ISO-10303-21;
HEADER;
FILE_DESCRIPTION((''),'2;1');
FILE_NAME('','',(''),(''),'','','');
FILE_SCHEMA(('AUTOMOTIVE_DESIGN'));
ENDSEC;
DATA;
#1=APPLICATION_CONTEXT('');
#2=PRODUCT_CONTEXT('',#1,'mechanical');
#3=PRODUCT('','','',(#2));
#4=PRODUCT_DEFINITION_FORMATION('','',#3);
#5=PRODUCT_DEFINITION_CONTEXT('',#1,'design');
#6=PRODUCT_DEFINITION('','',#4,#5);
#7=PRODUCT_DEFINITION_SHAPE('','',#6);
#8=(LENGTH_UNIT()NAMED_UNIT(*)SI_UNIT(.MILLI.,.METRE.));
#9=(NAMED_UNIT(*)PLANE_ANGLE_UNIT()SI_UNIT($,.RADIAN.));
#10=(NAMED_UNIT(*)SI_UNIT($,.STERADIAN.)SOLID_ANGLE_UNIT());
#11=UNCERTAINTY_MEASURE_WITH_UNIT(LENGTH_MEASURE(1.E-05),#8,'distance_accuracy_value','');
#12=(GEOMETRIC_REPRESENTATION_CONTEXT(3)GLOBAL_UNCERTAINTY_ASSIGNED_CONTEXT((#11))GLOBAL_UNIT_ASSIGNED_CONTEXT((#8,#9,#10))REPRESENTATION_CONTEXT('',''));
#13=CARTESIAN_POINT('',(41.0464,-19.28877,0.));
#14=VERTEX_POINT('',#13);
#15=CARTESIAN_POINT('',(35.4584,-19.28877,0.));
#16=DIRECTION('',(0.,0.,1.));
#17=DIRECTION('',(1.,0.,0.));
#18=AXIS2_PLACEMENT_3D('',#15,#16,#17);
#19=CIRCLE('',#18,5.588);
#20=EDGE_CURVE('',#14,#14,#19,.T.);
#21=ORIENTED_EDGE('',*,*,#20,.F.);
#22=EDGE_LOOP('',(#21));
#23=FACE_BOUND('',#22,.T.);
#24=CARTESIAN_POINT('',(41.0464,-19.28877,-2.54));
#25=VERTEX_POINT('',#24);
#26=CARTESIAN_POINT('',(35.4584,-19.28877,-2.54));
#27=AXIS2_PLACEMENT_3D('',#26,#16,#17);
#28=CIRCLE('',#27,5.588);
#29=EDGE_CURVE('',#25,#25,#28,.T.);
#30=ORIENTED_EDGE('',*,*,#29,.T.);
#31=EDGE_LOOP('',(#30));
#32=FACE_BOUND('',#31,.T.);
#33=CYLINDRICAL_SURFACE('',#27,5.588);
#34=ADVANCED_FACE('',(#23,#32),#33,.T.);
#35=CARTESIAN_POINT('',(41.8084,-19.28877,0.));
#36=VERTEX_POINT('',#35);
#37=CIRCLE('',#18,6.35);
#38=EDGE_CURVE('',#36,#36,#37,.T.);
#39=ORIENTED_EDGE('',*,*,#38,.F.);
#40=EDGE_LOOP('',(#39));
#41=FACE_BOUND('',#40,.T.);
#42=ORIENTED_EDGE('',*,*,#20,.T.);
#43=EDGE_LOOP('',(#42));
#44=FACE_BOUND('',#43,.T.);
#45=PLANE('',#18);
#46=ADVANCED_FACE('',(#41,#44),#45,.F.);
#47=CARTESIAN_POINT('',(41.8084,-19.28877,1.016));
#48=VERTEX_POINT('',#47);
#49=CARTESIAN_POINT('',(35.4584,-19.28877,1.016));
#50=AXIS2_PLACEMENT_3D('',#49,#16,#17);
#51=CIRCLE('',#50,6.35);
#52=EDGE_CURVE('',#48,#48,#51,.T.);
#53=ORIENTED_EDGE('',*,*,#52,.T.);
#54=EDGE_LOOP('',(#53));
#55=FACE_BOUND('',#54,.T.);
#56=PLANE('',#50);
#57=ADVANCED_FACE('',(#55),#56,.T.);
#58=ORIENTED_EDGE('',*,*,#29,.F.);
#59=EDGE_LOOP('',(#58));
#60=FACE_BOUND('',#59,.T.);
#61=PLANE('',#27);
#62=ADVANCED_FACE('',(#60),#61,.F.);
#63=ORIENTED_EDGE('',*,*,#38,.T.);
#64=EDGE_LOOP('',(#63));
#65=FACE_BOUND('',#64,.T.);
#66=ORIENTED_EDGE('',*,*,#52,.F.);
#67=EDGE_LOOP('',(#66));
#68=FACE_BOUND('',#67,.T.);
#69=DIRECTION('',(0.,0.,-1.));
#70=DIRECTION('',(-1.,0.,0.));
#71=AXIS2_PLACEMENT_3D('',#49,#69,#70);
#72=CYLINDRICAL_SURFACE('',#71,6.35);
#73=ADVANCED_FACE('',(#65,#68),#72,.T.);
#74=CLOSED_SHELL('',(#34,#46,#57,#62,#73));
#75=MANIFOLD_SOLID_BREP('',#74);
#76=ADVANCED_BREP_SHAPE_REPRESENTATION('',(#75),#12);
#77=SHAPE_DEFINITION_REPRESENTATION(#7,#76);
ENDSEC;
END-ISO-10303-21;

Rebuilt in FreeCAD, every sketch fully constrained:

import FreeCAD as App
import Part
import Sketcher
from FreeCAD import Vector
Q = App.Units.Quantity

doc = App.newDocument("Part")
body = doc.addObject("PartDesign::Body", "Body")

# Sketch on XY plane
sketch1 = body.newObject("Sketcher::SketchObject", "Sketch")
sketch1.AttachmentSupport = (doc.getObject("XY_Plane"), [""])
sketch1.MapMode = "FlatFace"
sketch1.addGeometry(Part.Circle(Vector(35.4584, -19.28877, 0), Vector(0, 0, 1), 5.588), False)
sketch1.addConstraint(Sketcher.Constraint("Diameter", 0, Q("0.44 in")))
sketch1.addConstraint(Sketcher.Constraint("DistanceX", -1, 1, 0, 3, Q("1.396 in")))
sketch1.addConstraint(Sketcher.Constraint("DistanceY", 0, 3, -1, 1, Q("19.28877 mm")))
pad1 = body.newObject("PartDesign::Pad", "Pad")
pad1.Profile = sketch1
pad1.Length = Q("0.1 in")
pad1.Reversed = True

# Sketch on XY plane
sketch2 = body.newObject("Sketcher::SketchObject", "Sketch001")
sketch2.AttachmentSupport = (doc.getObject("XY_Plane"), [""])
sketch2.MapMode = "FlatFace"
sketch2.addGeometry(Part.Circle(Vector(35.4584, -19.28877, 0), Vector(0, 0, 1), 6.35), False)
sketch2.addConstraint(Sketcher.Constraint("Diameter", 0, Q("0.5 in")))
sketch2.addConstraint(Sketcher.Constraint("DistanceX", -1, 1, 0, 3, Q("1.396 in")))
sketch2.addConstraint(Sketcher.Constraint("DistanceY", 0, 3, -1, 1, Q("19.28877 mm")))
pad2 = body.newObject("PartDesign::Pad", "Pad001")
pad2.Profile = sketch2
pad2.Length = Q("0.04 in")

doc.recompute()
